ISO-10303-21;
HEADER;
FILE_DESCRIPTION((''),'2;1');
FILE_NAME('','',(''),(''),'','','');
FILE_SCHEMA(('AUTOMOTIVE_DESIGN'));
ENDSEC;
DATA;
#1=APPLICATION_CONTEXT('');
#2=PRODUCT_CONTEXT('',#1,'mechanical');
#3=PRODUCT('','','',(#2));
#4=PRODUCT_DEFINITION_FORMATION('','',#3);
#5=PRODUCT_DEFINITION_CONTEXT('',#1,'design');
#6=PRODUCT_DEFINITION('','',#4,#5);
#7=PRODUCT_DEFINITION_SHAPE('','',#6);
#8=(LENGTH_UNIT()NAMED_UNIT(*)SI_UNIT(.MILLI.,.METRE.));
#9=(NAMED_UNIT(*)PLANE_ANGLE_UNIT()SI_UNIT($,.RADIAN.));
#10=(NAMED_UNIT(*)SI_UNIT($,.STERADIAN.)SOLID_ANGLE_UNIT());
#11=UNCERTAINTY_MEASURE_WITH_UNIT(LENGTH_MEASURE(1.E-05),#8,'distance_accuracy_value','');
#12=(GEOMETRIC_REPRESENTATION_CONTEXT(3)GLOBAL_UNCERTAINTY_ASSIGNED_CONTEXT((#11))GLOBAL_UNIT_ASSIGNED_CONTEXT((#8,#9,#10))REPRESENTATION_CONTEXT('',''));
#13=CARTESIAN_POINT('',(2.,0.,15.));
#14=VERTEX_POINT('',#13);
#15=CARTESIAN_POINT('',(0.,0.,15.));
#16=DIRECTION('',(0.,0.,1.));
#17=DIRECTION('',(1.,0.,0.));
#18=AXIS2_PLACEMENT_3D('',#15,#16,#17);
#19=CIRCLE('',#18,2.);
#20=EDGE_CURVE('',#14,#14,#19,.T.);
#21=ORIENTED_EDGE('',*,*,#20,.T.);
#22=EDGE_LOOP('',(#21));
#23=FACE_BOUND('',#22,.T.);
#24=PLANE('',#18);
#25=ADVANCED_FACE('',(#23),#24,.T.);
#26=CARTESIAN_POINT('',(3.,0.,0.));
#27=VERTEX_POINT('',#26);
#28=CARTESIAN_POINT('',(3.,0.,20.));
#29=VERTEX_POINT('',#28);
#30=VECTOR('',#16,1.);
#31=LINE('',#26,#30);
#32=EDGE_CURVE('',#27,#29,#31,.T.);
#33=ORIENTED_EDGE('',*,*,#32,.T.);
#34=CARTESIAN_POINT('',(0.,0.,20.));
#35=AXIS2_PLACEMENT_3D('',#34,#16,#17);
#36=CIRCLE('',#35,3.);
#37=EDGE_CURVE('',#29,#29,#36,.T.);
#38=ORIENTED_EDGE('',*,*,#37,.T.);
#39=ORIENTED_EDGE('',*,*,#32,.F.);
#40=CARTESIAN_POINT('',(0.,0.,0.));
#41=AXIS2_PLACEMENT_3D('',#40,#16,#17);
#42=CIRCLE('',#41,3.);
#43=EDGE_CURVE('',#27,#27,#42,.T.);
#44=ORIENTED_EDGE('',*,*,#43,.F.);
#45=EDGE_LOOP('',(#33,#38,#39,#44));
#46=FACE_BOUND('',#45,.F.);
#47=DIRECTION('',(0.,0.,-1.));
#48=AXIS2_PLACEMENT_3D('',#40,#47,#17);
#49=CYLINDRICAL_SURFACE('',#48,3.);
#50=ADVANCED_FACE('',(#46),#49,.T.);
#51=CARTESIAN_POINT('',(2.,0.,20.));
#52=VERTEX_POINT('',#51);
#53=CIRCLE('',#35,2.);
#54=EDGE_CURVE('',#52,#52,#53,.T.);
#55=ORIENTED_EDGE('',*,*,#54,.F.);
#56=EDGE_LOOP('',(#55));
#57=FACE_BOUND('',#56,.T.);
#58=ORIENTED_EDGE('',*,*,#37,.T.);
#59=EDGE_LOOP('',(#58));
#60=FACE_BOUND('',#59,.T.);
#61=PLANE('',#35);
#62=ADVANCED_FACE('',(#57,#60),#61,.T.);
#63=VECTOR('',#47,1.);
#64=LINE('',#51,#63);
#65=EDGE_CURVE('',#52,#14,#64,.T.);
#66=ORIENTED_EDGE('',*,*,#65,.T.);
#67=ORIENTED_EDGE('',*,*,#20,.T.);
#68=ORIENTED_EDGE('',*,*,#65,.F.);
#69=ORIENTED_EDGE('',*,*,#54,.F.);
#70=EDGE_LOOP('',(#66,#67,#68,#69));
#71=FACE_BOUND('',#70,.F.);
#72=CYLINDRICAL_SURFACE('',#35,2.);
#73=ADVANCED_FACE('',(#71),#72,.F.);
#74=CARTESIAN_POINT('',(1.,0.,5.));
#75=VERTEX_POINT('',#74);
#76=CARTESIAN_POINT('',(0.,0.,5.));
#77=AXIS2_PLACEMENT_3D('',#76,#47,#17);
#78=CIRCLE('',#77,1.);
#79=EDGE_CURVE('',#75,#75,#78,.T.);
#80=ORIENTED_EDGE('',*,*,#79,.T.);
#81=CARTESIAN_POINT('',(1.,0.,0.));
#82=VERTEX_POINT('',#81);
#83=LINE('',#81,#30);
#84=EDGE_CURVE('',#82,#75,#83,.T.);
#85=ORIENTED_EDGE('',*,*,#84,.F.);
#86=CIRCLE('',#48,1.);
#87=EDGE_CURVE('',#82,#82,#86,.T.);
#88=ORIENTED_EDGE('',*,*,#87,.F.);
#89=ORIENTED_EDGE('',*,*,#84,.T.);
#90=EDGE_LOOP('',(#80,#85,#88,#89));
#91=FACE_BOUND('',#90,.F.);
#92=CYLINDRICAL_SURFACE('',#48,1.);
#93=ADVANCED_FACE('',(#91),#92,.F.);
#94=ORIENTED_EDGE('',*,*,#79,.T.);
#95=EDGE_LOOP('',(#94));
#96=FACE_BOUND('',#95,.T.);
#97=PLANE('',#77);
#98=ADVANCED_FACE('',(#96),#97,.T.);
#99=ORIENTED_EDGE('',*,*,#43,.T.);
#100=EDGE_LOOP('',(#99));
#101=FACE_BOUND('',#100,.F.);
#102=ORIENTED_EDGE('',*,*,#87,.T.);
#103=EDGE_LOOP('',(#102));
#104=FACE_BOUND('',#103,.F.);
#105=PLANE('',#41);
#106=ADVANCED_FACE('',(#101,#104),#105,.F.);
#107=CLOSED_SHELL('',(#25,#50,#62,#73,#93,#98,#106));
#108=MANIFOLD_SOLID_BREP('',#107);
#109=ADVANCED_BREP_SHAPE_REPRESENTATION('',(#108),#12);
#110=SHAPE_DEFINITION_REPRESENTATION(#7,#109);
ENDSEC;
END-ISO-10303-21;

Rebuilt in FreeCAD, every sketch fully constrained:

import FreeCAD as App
import Part
import Sketcher
Q = App.Units.Quantity

doc = App.newDocument("Part")
body = doc.addObject("PartDesign::Body", "Body")

# Sketch on XY plane
sketch1 = body.newObject("Sketcher::SketchObject", "Sketch")
sketch1.AttachmentSupport = (doc.getObject("XY_Plane"), [""])
sketch1.MapMode = "FlatFace"
sketch1.addGeometry(Part.Circle(App.Vector(0, 0, 0), App.Vector(0, 0, 1), 3), False)
sketch1.addConstraint(Sketcher.Constraint("Coincident", 0, 3, -1, 1))
sketch1.addConstraint(Sketcher.Constraint("Diameter", 0, Q("6 mm")))
pad1 = body.newObject("PartDesign::Pad", "Pad")
pad1.Profile = sketch1
pad1.Length = 20

# Sketch on XY plane
sketch2 = body.newObject("Sketcher::SketchObject", "Sketch001")
sketch2.AttachmentSupport = (doc.getObject("XY_Plane"), [""])
sketch2.MapMode = "FlatFace"
sketch2.AttachmentOffset = App.Placement(App.Vector(0, 0, 20), App.Rotation())
sketch2.addGeometry(Part.Circle(App.Vector(0, 0, 0), App.Vector(0, 0, 1), 2), False)
sketch2.addConstraint(Sketcher.Constraint("Coincident", 0, 3, -1, 1))
sketch2.addConstraint(Sketcher.Constraint("Diameter", 0, Q("4 mm")))
pocket1 = body.newObject("PartDesign::Pocket", "Pocket")
pocket1.Profile = sketch2
pocket1.Length = 5

# Sketch on XY plane
sketch3 = body.newObject("Sketcher::SketchObject", "Sketch002")
sketch3.AttachmentSupport = (doc.getObject("XY_Plane"), [""])
sketch3.MapMode = "FlatFace"
sketch3.addGeometry(Part.Circle(App.Vector(0, 0, 0), App.Vector(0, 0, 1), 1), False)
sketch3.addConstraint(Sketcher.Constraint("Coincident", 0, 3, -1, 1))
sketch3.addConstraint(Sketcher.Constraint("Diameter", 0, Q("2 mm")))
pocket2 = body.newObject("PartDesign::Pocket", "Pocket001")
pocket2.Profile = sketch3
pocket2.Length = 5
pocket2.Reversed = True

doc.recompute()
